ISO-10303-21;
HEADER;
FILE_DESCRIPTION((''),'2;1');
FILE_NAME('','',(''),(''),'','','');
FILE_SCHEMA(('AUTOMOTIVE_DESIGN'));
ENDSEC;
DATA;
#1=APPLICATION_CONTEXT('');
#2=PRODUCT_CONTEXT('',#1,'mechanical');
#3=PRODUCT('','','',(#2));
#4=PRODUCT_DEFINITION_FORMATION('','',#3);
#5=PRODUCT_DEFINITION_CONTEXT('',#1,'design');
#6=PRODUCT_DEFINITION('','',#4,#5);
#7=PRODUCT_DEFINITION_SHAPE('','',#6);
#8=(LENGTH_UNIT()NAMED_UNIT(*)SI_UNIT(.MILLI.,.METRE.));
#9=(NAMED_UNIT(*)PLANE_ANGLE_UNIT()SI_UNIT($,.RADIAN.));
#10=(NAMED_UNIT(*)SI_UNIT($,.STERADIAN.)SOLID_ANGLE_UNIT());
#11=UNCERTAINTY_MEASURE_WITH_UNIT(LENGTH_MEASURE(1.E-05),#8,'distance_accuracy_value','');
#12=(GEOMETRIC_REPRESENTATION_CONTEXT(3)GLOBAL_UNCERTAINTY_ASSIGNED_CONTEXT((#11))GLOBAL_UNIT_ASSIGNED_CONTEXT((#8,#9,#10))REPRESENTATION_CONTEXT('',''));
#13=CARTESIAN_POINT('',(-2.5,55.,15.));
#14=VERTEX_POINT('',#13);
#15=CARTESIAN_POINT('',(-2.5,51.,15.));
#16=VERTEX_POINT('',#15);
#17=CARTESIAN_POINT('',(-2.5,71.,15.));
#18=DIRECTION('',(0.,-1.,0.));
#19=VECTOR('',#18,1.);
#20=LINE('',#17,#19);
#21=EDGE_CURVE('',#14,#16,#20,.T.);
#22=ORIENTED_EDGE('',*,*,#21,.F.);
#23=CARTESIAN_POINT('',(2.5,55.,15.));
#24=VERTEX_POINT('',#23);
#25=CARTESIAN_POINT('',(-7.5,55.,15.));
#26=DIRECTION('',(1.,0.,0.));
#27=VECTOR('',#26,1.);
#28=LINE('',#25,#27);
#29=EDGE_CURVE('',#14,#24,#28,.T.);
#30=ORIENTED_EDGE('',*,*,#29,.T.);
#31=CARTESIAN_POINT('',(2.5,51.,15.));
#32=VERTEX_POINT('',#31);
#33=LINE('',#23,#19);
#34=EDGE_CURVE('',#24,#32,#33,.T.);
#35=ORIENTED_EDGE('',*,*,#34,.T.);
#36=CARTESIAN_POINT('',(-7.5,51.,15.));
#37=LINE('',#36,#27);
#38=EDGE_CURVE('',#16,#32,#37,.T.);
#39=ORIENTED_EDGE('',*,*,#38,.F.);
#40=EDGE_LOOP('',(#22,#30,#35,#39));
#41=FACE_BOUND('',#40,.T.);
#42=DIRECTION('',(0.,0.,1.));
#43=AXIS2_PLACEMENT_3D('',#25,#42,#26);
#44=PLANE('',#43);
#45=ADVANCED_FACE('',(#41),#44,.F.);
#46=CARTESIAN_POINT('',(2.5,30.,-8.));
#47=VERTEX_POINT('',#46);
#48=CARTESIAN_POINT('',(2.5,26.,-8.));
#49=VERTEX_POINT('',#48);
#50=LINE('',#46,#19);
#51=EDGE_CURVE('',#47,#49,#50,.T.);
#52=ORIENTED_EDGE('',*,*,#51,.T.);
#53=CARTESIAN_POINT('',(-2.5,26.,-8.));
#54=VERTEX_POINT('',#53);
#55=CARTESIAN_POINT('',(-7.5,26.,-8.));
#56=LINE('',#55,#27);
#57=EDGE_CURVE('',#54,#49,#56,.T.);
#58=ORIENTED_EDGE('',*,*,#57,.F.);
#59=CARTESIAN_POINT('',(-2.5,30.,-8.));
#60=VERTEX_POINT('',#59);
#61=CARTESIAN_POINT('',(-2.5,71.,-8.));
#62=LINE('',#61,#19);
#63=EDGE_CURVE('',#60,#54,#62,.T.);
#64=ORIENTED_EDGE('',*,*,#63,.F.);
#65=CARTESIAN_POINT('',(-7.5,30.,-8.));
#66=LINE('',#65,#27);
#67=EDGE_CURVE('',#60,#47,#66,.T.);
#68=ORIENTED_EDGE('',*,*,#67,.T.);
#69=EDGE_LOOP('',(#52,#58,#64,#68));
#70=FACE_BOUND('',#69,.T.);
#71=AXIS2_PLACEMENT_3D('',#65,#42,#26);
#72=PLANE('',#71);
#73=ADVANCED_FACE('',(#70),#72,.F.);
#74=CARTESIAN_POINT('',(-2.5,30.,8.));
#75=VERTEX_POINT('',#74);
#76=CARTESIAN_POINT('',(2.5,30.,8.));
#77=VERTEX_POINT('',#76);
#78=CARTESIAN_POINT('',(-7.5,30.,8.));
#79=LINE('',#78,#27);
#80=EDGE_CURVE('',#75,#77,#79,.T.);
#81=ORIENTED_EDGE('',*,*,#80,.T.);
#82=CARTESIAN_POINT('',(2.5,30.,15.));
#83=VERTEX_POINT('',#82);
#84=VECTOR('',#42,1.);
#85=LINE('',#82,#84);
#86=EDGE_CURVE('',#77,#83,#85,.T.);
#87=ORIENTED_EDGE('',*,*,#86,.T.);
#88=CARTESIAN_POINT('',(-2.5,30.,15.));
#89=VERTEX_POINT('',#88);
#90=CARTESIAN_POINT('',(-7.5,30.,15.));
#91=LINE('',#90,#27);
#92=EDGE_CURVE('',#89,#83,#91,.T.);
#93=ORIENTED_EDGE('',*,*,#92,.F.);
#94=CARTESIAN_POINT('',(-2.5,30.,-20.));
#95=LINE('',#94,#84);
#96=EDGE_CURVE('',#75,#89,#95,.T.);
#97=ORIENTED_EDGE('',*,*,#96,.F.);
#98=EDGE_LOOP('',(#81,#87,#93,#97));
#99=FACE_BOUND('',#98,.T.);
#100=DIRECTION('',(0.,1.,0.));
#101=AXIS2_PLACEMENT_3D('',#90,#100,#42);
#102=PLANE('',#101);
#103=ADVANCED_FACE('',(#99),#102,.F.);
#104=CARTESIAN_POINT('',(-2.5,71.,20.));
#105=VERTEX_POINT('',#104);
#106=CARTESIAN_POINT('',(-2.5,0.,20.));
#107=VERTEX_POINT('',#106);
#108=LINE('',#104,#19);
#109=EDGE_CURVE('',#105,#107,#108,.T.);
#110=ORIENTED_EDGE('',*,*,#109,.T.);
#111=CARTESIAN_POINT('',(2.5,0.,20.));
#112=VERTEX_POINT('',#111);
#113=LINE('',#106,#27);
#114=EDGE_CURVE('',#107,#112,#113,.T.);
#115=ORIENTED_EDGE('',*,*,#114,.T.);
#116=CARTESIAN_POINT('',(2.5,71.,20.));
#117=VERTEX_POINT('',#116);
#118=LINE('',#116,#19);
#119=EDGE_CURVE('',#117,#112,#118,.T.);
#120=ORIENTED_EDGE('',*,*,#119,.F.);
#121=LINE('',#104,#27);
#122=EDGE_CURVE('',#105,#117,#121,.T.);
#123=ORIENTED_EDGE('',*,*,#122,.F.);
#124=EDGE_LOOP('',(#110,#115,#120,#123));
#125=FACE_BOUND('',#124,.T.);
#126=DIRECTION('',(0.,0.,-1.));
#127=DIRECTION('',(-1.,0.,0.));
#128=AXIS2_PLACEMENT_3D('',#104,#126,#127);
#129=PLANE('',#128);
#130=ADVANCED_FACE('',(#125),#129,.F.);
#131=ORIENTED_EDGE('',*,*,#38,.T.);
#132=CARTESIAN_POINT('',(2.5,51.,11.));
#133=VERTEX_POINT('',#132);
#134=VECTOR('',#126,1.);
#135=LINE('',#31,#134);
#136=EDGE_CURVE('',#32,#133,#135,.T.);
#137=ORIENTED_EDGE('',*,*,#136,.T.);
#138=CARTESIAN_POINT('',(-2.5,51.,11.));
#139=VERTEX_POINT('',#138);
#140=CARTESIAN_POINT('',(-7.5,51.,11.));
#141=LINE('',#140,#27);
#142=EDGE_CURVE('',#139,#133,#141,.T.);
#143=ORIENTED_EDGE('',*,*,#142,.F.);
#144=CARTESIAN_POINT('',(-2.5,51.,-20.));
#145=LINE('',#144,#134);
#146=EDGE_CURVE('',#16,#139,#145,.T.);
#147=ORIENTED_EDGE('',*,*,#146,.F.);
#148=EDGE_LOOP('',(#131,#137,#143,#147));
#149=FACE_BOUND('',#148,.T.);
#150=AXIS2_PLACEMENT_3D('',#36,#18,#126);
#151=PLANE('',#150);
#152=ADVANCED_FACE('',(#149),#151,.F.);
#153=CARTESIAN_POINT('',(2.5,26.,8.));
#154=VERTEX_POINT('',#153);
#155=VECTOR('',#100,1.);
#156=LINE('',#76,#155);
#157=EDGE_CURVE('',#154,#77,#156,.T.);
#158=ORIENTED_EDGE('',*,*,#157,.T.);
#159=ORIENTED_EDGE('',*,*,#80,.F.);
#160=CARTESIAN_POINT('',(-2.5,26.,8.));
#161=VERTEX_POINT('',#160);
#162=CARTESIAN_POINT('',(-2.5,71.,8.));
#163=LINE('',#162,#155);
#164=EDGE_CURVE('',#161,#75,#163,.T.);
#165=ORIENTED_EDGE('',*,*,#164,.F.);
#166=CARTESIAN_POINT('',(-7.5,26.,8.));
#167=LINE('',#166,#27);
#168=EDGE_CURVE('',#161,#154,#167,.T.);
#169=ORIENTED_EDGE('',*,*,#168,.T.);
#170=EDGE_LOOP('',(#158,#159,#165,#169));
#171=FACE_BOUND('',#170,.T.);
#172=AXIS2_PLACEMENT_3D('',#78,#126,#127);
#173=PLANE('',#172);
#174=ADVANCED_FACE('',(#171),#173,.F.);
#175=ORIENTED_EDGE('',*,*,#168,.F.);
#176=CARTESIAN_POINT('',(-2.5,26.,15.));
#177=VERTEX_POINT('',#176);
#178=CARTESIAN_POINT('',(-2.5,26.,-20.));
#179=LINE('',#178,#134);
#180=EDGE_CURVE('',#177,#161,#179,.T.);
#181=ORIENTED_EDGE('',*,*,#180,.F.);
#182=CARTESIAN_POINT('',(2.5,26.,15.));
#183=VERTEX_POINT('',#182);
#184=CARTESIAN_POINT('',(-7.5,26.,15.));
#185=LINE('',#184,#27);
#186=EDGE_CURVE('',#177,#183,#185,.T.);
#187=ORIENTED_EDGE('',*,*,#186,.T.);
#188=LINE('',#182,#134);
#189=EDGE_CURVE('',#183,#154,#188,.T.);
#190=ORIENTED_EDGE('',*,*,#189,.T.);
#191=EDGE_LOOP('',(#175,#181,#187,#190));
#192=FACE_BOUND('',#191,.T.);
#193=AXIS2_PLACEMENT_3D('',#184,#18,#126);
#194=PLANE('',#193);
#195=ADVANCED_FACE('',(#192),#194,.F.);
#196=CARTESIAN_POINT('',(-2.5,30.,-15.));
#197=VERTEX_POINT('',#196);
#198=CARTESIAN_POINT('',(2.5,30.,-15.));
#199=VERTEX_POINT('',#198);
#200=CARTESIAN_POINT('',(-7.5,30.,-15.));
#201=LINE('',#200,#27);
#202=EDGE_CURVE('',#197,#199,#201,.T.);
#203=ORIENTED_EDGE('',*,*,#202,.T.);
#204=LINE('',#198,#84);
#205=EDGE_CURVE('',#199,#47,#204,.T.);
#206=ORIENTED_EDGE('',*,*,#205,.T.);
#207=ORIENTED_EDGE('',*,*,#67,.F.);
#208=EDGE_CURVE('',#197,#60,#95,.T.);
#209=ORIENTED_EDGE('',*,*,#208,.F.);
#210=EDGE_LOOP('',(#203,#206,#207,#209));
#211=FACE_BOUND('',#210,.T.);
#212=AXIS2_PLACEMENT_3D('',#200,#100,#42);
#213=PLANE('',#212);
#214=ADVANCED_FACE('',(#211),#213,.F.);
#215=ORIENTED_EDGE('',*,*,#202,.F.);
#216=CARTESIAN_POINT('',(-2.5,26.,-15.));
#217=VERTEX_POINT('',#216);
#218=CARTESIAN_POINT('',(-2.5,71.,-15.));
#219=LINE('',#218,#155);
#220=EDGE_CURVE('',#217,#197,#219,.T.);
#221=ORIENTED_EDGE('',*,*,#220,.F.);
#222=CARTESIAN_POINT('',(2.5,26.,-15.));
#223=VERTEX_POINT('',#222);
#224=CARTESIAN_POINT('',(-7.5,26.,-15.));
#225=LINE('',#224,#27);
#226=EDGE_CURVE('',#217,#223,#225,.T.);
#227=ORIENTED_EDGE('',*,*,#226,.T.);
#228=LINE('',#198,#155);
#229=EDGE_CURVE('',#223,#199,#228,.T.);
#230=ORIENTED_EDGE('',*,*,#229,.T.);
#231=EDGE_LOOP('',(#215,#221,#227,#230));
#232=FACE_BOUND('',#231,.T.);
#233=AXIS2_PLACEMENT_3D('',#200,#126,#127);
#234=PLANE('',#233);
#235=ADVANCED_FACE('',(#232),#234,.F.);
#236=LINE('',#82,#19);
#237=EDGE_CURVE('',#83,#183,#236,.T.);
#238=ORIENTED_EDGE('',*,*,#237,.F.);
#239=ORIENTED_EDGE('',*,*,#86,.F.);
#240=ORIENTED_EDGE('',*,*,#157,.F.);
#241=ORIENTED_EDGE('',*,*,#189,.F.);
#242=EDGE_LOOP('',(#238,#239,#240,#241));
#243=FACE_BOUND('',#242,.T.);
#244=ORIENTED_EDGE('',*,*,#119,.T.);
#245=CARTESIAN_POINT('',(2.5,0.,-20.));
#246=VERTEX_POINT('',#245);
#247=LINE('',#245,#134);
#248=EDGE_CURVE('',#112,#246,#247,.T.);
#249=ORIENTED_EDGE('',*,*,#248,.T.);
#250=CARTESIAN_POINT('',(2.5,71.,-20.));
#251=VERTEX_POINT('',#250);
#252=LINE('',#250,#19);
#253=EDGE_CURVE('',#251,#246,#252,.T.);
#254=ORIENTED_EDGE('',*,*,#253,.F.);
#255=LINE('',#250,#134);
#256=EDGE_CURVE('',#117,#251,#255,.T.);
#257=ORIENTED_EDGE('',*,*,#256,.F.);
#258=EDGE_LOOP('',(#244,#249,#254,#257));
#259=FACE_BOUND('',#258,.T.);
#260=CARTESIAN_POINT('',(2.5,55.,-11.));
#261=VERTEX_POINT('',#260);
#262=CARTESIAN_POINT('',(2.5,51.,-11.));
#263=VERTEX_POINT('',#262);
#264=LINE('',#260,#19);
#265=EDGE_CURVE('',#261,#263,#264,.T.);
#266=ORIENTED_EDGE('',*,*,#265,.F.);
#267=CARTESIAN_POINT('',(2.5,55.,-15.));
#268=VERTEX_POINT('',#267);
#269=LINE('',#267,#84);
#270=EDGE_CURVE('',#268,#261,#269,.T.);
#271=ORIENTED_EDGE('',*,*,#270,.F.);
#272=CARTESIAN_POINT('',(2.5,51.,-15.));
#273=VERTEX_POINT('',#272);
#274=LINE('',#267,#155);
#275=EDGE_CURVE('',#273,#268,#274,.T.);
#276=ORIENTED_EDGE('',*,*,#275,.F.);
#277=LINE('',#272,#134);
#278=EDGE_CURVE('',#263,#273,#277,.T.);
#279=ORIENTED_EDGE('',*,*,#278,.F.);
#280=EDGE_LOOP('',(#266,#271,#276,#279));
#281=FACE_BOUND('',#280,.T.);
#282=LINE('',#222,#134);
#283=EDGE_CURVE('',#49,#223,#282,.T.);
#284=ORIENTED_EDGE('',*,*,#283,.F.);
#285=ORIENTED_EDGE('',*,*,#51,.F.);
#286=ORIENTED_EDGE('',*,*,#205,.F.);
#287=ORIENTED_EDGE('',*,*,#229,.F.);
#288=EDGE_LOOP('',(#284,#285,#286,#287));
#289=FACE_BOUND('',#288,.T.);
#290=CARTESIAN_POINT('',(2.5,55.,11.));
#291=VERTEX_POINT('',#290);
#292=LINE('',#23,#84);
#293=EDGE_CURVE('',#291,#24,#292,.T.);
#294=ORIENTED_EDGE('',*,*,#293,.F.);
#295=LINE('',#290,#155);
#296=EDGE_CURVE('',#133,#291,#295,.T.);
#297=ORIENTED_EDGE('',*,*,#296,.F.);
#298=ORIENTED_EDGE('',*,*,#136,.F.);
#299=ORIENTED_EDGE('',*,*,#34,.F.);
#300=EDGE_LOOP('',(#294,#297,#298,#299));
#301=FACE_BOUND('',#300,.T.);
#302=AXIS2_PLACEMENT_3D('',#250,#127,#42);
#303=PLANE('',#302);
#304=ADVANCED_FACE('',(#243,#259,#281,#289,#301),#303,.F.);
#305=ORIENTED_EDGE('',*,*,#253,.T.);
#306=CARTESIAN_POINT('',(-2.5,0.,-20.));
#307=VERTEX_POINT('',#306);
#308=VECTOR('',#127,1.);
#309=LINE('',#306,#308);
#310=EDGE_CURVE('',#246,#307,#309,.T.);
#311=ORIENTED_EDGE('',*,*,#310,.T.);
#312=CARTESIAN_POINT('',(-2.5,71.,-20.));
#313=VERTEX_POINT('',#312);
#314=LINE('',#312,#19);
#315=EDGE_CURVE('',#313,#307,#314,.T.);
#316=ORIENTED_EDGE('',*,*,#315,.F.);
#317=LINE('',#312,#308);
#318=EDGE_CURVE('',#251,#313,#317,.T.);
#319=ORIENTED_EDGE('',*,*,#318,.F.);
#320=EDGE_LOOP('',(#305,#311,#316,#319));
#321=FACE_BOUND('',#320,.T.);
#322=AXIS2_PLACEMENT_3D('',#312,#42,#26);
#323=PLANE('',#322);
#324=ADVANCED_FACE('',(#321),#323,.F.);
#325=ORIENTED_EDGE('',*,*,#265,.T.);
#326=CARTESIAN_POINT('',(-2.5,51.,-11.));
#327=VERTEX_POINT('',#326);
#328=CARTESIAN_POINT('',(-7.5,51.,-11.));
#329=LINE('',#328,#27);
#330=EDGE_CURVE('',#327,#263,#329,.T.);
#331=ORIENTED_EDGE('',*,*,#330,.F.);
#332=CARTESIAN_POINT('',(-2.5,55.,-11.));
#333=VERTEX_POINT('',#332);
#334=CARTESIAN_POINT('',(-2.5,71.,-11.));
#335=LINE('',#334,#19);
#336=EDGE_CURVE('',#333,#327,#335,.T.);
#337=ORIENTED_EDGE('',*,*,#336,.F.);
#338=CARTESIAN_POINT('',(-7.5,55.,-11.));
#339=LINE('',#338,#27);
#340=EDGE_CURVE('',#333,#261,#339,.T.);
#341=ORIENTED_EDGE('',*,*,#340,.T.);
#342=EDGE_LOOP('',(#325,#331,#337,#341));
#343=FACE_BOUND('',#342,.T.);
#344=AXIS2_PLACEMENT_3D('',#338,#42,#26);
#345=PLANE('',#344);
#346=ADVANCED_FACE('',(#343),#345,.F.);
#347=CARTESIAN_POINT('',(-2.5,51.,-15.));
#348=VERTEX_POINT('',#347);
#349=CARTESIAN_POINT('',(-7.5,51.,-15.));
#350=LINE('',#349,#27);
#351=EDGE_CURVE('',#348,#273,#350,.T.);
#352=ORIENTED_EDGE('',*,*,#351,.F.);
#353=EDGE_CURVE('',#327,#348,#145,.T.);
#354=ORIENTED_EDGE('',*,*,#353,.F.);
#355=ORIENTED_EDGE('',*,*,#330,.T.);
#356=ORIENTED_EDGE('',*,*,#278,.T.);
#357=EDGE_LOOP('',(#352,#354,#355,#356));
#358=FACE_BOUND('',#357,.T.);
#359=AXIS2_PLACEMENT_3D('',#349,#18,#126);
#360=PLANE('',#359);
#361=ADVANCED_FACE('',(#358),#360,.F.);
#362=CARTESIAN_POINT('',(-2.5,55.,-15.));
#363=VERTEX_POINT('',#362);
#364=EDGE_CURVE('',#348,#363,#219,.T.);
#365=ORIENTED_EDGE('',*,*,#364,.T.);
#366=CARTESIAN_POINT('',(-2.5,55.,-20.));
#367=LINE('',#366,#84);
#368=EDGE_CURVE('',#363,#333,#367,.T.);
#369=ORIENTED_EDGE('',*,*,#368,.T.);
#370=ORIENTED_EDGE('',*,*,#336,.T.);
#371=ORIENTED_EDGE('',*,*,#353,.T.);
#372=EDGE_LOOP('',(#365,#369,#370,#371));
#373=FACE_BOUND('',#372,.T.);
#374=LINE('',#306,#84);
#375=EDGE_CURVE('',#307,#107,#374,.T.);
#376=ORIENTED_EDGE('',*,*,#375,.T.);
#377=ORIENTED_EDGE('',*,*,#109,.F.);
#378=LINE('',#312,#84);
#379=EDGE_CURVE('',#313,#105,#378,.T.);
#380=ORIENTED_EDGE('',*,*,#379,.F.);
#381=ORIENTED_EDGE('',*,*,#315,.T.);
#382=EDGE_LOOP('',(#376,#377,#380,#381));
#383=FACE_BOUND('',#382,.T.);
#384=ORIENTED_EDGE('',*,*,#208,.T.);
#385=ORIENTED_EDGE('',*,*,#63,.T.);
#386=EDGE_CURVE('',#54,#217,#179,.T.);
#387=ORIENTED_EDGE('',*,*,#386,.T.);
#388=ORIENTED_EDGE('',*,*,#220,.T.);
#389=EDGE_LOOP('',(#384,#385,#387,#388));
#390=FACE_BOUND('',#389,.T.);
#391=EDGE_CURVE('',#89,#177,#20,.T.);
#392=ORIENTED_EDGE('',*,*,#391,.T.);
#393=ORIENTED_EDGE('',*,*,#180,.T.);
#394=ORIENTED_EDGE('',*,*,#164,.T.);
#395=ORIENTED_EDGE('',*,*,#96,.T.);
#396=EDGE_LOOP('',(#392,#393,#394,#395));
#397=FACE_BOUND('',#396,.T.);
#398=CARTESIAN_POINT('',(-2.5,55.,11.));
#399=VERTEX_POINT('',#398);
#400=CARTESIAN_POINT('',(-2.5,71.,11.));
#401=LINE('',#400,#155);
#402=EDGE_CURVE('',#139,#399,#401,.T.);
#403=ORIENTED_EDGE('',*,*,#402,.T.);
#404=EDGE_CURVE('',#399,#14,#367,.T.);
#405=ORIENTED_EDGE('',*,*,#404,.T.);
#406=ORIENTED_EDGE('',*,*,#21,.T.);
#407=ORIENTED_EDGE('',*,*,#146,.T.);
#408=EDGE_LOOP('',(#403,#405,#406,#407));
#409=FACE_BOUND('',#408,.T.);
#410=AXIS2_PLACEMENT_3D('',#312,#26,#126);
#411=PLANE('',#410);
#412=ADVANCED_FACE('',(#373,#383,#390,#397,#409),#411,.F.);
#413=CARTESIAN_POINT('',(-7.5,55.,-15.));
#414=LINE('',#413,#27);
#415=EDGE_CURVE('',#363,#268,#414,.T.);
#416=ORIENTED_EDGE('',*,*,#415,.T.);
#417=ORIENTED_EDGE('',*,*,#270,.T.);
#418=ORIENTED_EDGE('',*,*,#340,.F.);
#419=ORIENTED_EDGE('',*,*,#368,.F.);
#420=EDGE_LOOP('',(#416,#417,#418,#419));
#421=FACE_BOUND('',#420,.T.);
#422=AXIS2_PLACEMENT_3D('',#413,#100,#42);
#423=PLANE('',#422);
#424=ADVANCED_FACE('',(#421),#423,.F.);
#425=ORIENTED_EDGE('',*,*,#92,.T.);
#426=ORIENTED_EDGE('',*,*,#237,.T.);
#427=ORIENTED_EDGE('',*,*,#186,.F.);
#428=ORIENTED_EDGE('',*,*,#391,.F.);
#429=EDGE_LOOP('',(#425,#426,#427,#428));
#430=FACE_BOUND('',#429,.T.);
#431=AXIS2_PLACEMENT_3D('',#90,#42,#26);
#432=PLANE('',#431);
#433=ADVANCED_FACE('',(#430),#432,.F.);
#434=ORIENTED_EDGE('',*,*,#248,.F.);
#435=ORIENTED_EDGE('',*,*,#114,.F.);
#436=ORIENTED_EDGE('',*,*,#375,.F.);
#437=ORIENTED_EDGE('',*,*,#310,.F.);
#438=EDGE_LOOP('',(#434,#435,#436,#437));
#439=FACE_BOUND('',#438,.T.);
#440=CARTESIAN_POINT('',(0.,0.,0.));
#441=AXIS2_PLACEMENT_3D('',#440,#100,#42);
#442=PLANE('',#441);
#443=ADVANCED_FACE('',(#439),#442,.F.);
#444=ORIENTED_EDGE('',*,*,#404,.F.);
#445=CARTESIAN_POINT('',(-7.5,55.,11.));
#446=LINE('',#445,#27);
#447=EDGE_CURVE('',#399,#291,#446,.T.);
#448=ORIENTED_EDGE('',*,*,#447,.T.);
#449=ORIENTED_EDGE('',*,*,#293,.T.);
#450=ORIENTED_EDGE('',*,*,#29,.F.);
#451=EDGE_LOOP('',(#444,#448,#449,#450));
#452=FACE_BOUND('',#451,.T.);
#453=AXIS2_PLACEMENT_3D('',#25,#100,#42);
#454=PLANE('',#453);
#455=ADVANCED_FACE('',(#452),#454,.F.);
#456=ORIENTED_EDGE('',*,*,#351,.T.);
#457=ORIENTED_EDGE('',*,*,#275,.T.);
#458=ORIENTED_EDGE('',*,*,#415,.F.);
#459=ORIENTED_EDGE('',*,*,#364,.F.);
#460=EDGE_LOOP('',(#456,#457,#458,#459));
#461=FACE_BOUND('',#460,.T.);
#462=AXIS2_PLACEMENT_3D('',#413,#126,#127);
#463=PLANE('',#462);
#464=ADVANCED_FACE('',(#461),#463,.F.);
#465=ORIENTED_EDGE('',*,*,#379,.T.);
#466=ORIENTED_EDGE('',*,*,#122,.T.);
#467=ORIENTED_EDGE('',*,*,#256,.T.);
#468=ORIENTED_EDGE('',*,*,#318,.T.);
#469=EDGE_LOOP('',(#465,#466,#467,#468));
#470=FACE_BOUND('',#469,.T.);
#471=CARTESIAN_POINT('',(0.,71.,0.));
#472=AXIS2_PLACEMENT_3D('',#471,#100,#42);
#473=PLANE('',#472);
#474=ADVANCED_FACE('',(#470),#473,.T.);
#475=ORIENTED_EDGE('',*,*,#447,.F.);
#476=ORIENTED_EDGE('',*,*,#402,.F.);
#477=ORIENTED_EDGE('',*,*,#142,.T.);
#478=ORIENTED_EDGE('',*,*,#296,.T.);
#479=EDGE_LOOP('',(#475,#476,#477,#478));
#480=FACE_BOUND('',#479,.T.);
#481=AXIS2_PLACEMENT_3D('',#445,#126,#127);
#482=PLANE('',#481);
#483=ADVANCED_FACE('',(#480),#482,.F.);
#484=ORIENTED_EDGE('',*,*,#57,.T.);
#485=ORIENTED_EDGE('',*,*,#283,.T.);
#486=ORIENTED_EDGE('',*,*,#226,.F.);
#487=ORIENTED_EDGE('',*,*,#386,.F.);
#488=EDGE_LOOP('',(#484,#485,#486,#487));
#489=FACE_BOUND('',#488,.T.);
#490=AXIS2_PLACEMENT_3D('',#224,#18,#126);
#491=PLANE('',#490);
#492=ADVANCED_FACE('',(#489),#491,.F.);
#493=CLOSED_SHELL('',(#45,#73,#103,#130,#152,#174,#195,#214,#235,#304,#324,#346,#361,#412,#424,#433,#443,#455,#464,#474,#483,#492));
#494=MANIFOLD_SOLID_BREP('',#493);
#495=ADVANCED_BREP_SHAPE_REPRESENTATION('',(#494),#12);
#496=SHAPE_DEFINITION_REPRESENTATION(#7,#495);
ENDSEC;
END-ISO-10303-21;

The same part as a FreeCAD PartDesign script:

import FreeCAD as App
import Part
import Sketcher

V = App.Vector


def add_polygon(sketch, points):
    """Adds a closed chain of lines whose ends are joined by coincident constraints."""
    first, n = sketch.GeometryCount, len(points)
    for a, b in zip(points, points[1:] + points[:1]):
        sketch.addGeometry(Part.LineSegment(App.Vector(*a, 0), App.Vector(*b, 0)), False)
    for i in range(n):
        sketch.addConstraint(Sketcher.Constraint("Coincident", first + i, 2, first + (i + 1) % n, 1))

doc = App.newDocument("Part")
params = doc.addObject("Spreadsheet::Sheet", "Params")
for row, (alias, value) in enumerate([
    ("sketch1_width", "5 mm"),
    ("sketch1_height", "40 mm"),
    ("pad1_length", "71 mm"),
    ("sketch2_width", "4 mm"),
    ("sketch2_height", "7 mm"),
    ("pocket1_length", "10 mm"),
], start=1):
    params.set(f"A{row}", alias)
    params.set(f"B{row}", "=" + value)
    params.setAlias(f"B{row}", alias)

body = doc.addObject("PartDesign::Body", "Body")

sketch1 = doc.addObject("Sketcher::SketchObject", "Sketch")
body.addObject(sketch1)
sketch1.AttachmentSupport = (doc.XZ_Plane, [""])
sketch1.MapMode = "FlatFace"
add_polygon(sketch1, [(-2.5, -20), (-2.5, 20), (2.5, 20), (2.5, -20)])
sketch1.addConstraint([
    Sketcher.Constraint("Vertical", 0),
    Sketcher.Constraint("Horizontal", 1),
    Sketcher.Constraint("Vertical", 2),
    Sketcher.Constraint("Horizontal", 3),
    Sketcher.Constraint("Symmetric", 0, 2, 2, 2, -1, 1),
    Sketcher.Constraint("DistanceX", 1, 1, 1, 2, 5.0),
    Sketcher.Constraint("DistanceY", 0, 1, 0, 2, 40.0),
])
sketch1.setExpression("Constraints[9]", "Params.sketch1_width")
sketch1.setExpression("Constraints[10]", "Params.sketch1_height")
pad1 = doc.addObject("PartDesign::Pad", "Pad")
body.addObject(pad1)
pad1.Profile = sketch1
pad1.setExpression("Length", "Params.pad1_length")
pad1.Reversed = True

sketch2 = doc.addObject("Sketcher::SketchObject", "Sketch001")
body.addObject(sketch2)
sketch2.AttachmentSupport = (doc.YZ_Plane, [""])
sketch2.MapMode = "FlatFace"
sketch2.AttachmentOffset = App.Placement(V(0, 0, 2.5), App.Rotation())
add_polygon(sketch2, [(30, 15), (26, 15), (26, 8), (30, 8)])
add_polygon(sketch2, [(30, -8), (26, -8), (26, -15), (30, -15)])
add_polygon(sketch2, [(55, 15), (51, 15), (51, 11), (55, 11)])
add_polygon(sketch2, [(55, -11), (51, -11), (51, -15), (55, -15)])
sketch2.addConstraint([
    Sketcher.Constraint("Horizontal", 0),
    Sketcher.Constraint("Vertical", 1),
    Sketcher.Constraint("Horizontal", 2),
    Sketcher.Constraint("Vertical", 3),
    Sketcher.Constraint("Horizontal", 4),
    Sketcher.Constraint("Vertical", 5),
    Sketcher.Constraint("Horizontal", 6),
    Sketcher.Constraint("Vertical", 7),
    Sketcher.Constraint("Horizontal", 8),
    Sketcher.Constraint("Vertical", 9),
    Sketcher.Constraint("Horizontal", 10),
    Sketcher.Constraint("Vertical", 11),
    Sketcher.Constraint("Horizontal", 12),
    Sketcher.Constraint("Vertical", 13),
    Sketcher.Constraint("Horizontal", 14),
    Sketcher.Constraint("Vertical", 15),
    Sketcher.Constraint("Symmetric", 1, 2, 4, 2, -1),
    Sketcher.Constraint("Symmetric", 3, 2, 6, 2, -1),
    Sketcher.Constraint("Symmetric", 9, 2, 12, 2, -1),
    Sketcher.Constraint("Symmetric", 11, 2, 14, 2, -1),
    Sketcher.Constraint("Horizontal", 3, 2, 8, 2),
    Sketcher.Constraint("Equal", 6, 8),
    Sketcher.Constraint("Equal", 14, 9),
    Sketcher.Constraint("DistanceX", 0, 2, 0, 1, 4.0),
    Sketcher.Constraint("DistanceY", 1, 2, 1, 1, 7.0),
    Sketcher.Constraint("DistanceX", -1, 1, 0, 2, 26.0),
    Sketcher.Constraint("DistanceY", -1, 1, 0, 2, 15.0),
    Sketcher.Constraint("DistanceX", -1, 1, 8, 2, 51.0),
])
sketch2.setExpression("Constraints[39]", "Params.sketch2_width")
sketch2.setExpression("Constraints[40]", "Params.sketch2_height")
pocket1 = doc.addObject("PartDesign::Pocket", "Pocket")
body.addObject(pocket1)
pocket1.Profile = sketch2
pocket1.setExpression("Length", "Params.pocket1_length")

doc.recompute()
